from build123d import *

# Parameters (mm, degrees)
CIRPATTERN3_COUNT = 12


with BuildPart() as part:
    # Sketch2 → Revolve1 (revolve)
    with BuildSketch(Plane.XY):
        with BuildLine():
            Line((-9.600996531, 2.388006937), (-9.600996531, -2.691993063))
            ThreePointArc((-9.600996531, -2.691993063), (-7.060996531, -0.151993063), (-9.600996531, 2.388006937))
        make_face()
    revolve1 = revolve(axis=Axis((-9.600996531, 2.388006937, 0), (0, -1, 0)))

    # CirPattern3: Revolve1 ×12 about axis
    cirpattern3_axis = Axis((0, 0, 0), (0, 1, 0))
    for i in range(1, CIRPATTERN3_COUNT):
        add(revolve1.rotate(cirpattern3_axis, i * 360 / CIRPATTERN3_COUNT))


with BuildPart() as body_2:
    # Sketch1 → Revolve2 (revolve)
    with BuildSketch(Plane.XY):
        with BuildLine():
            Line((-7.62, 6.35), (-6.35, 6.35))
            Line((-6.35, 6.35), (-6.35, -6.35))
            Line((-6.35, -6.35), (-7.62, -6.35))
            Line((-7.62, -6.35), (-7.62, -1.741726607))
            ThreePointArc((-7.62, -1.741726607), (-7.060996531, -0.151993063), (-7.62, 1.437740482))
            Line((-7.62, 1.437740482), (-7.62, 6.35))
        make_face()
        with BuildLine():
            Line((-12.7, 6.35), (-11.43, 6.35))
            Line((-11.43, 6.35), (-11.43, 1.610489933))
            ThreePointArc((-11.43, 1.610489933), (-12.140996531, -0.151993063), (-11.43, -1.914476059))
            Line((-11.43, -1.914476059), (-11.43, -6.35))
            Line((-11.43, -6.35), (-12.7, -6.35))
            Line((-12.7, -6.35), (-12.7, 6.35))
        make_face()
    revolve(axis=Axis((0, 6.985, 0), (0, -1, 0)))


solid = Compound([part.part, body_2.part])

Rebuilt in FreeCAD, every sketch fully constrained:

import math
import FreeCAD as App
import Part
import Sketcher
Q = App.Units.Quantity

doc = App.newDocument("Part")
body = doc.addObject("PartDesign::Body", "Body")

# Sketch on XY plane
sketch1 = doc.addObject("Sketcher::SketchObject", "Sketch")
body.addObject(sketch1)
sketch1.AttachmentSupport = (doc.XY_Plane, [""])
sketch1.MapMode = "FlatFace"
sketch1.addGeometry([
    Part.LineSegment(App.Vector(-9.6, 2.4, 0), App.Vector(-9.6, -2.7, 0)),
    Part.ArcOfCircle(Part.Circle(App.Vector(-9.6, -0.2, 0), App.Vector(0, 0, 1), 2.5), math.radians(-90), math.radians(90)),
], False)
sketch1.addGeometry(Part.LineSegment(App.Vector(-9.6, 2.4, 0), App.Vector(-9.6, -2.7, 0)), True)  # axis
sketch1.addConstraint([
    Sketcher.Constraint("Coincident", 0, 1, 1, 2),
    Sketcher.Constraint("Coincident", 1, 1, 0, 2),
    Sketcher.Constraint("Vertical", 0),
    Sketcher.Constraint("Vertical", 2),
    Sketcher.Constraint("Coincident", 2, 1, 0, 1),
    Sketcher.Constraint("Vertical", 1, 3, 0, 1),
    Sketcher.Constraint("Equal", 0, 2),
    Sketcher.Constraint("Radius", 1, Q("0.1 in")),
    Sketcher.Constraint("DistanceX", 1, 3, -1, 1, 9.600997),
    Sketcher.Constraint("DistanceY", 1, 3, -1, 1, 0.151993),
])
revolution = doc.addObject("PartDesign::Revolution", "Revolution")
body.addObject(revolution)
revolution.Profile = sketch1
revolution.ReferenceAxis = (sketch1, ["Axis0"])
revolution.Angle = 360
doc.recompute()

polarpattern = doc.addObject("PartDesign::PolarPattern", "PolarPattern")
body.addObject(polarpattern)
polarpattern.Originals = [revolution]
polarpattern.Axis = (doc.Y_Axis, [""])
polarpattern.Angle = 360
polarpattern.Occurrences = 12
body.Tip = polarpattern
body2 = doc.addObject("PartDesign::Body", "Body001")
body2.AllowCompound = True

# Sketch on XY plane
sketch2 = doc.addObject("Sketcher::SketchObject", "Sketch001")
body2.addObject(sketch2)
sketch2.AttachmentSupport = (doc.getObject("XY_Plane001"), [""])
sketch2.MapMode = "FlatFace"
sketch2.addGeometry([
    Part.LineSegment(App.Vector(-6.3, 6.3, 0), App.Vector(-7.6, 6.3, 0)),  # 0
    Part.LineSegment(App.Vector(-7.6, 6.3, 0), App.Vector(-7.6, 1.4, 0)),  # 1
    Part.ArcOfCircle(Part.Circle(App.Vector(-9.6, -0.2, 0), App.Vector(0, 0, 1), 2.5), math.radians(-39), math.radians(39)),  # 2
    Part.LineSegment(App.Vector(-7.6, -1.7, 0), App.Vector(-7.6, -6.3, 0)),  # 3
    Part.LineSegment(App.Vector(-7.6, -6.3, 0), App.Vector(-6.3, -6.3, 0)),  # 4
    Part.LineSegment(App.Vector(-6.3, -6.3, 0), App.Vector(-6.3, 6.3, 0)),  # 5
    Part.LineSegment(App.Vector(-11.4, 6.3, 0), App.Vector(-12.7, 6.3, 0)),  # 6
    Part.LineSegment(App.Vector(-12.7, 6.3, 0), App.Vector(-12.7, -6.3, 0)),  # 7
    Part.LineSegment(App.Vector(-12.7, -6.3, 0), App.Vector(-11.4, -6.3, 0)),  # 8
    Part.LineSegment(App.Vector(-11.4, -6.3, 0), App.Vector(-11.4, -1.9, 0)),  # 9
    Part.ArcOfCircle(Part.Circle(App.Vector(-9.6, -0.2, 0), App.Vector(0, 0, 1), 2.5), math.radians(136), math.radians(224)),  # 10
    Part.LineSegment(App.Vector(-11.4, 1.6, 0), App.Vector(-11.4, 6.3, 0)),  # 11
], False)
sketch2.addConstraint([
    Sketcher.Constraint("Coincident", 0, 2, 1, 1),
    Sketcher.Constraint("Coincident", 1, 2, 2, 2),
    Sketcher.Constraint("Coincident", 2, 1, 3, 1),
    Sketcher.Constraint("Coincident", 3, 2, 4, 1),
    Sketcher.Constraint("Coincident", 4, 2, 5, 1),
    Sketcher.Constraint("Coincident", 5, 2, 0, 1),
    Sketcher.Constraint("Coincident", 6, 2, 7, 1),
    Sketcher.Constraint("Coincident", 7, 2, 8, 1),
    Sketcher.Constraint("Coincident", 8, 2, 9, 1),
    Sketcher.Constraint("Coincident", 9, 2, 10, 2),
    Sketcher.Constraint("Coincident", 10, 1, 11, 1),
    Sketcher.Constraint("Coincident", 11, 2, 6, 1),
    Sketcher.Constraint("Horizontal", 0),
    Sketcher.Constraint("Vertical", 1),
    Sketcher.Constraint("Vertical", 3),
    Sketcher.Constraint("Horizontal", 4),
    Sketcher.Constraint("Vertical", 5),
    Sketcher.Constraint("Horizontal", 6),
    Sketcher.Constraint("Vertical", 7),
    Sketcher.Constraint("Horizontal", 8),
    Sketcher.Constraint("Vertical", 9),
    Sketcher.Constraint("Vertical", 11),
    Sketcher.Constraint("Coincident", 10, 3, 2, 3),
    Sketcher.Constraint("Equal", 2, 10),
    Sketcher.Constraint("Symmetric", 0, 2, 3, 2, -1),
    Sketcher.Constraint("Symmetric", 8, 2, 11, 2, -1),
    Sketcher.Constraint("Horizontal", 5, 2, 6, 2),
    Sketcher.Constraint("Equal", 4, 6),
    Sketcher.Constraint("Radius", 2, Q("0.1 in")),
    Sketcher.Constraint("DistanceY", 5, 1, 5, 2, Q("0.5 in")),
    Sketcher.Constraint("DistanceX", 0, 2, 0, 1, Q("0.05 in")),
    Sketcher.Constraint("DistanceX", 0, 2, -1, 1, Q("0.3 in")),
    Sketcher.Constraint("DistanceX", 6, 2, -1, 1, Q("0.5 in")),
    Sketcher.Constraint("DistanceY", 1, 2, 1, 1, 4.91226),
    Sketcher.Constraint("DistanceY", 11, 1, 11, 2, 4.73951),
])
revolution2 = doc.addObject("PartDesign::Revolution", "Revolution001")
body2.addObject(revolution2)
revolution2.Profile = sketch2
revolution2.ReferenceAxis = (sketch2, ["V_Axis"])
revolution2.Angle = 360

doc.recompute()
